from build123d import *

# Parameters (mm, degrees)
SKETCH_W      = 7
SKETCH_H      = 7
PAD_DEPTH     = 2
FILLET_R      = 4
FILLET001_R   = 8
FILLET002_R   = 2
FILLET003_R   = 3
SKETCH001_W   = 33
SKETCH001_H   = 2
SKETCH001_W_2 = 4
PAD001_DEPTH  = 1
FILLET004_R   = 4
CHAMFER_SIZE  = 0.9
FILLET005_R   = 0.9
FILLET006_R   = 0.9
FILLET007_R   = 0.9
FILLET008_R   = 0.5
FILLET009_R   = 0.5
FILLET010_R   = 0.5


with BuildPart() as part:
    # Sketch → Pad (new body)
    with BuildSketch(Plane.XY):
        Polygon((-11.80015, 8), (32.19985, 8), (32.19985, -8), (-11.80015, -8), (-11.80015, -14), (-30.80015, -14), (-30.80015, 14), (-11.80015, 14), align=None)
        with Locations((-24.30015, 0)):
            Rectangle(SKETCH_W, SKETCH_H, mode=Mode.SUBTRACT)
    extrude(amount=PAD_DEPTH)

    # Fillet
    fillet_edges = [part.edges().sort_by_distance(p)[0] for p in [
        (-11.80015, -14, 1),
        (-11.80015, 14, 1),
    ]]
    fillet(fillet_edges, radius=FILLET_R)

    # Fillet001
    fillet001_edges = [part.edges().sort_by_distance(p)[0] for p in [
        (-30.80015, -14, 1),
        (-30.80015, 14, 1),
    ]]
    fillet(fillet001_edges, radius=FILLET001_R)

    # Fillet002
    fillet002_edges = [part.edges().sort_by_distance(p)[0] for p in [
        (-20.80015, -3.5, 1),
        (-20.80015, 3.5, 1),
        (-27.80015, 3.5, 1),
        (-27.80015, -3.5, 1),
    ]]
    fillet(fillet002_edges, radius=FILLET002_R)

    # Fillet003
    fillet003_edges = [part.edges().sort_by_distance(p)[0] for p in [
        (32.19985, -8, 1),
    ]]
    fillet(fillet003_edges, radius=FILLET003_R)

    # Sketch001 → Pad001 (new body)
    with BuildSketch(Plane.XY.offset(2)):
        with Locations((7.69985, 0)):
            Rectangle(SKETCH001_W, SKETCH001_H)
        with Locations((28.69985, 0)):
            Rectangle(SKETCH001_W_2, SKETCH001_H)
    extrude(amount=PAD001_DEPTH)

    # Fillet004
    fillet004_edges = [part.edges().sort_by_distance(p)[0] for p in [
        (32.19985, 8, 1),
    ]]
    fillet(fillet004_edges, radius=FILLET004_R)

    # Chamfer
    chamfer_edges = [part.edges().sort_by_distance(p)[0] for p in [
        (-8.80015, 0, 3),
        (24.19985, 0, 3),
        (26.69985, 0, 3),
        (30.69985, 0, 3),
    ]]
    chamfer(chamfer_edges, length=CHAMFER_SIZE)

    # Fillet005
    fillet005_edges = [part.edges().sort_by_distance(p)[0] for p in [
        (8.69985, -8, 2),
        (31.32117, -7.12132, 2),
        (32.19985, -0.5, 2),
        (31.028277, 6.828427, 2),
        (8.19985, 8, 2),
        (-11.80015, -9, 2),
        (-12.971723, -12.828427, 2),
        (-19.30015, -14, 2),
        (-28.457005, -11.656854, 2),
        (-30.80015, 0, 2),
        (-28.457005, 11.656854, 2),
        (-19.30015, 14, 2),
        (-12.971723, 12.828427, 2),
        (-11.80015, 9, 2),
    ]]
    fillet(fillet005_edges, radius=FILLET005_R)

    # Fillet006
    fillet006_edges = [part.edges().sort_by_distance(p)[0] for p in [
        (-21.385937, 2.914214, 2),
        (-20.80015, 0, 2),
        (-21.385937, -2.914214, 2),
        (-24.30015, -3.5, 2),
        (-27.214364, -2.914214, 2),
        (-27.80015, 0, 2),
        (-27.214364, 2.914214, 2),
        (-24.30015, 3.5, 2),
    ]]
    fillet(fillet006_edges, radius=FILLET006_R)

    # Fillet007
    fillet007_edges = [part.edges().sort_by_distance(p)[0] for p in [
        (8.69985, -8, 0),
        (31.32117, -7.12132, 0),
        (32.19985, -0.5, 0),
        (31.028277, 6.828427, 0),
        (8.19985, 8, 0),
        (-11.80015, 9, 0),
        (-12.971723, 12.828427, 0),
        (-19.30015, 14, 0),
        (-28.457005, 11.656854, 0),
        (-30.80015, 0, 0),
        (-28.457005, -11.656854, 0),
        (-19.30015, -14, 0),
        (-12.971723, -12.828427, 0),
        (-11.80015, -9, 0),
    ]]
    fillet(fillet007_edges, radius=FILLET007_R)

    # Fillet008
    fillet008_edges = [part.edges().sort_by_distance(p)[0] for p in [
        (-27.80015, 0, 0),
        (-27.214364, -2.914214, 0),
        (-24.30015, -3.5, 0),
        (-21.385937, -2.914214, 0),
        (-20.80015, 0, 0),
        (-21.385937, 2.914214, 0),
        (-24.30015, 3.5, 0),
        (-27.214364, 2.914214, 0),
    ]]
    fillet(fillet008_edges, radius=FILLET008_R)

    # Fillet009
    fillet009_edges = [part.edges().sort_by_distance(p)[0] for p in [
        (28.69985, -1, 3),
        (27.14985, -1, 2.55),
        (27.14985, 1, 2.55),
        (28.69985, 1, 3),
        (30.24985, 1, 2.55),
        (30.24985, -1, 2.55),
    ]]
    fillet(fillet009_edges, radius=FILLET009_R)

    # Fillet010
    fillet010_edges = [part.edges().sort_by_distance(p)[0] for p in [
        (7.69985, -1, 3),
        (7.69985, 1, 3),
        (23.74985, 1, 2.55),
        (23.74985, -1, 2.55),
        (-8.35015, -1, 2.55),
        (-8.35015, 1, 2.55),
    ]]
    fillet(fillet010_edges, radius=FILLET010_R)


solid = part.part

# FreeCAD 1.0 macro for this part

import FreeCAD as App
import Part
import Sketcher
from FreeCAD import Vector
Q = App.Units.Quantity


def edges_at(feature, points):
    """Names of the edges that pass closest to the given points."""
    edges = feature.Shape.Edges
    near = lambda p: min(range(len(edges)), key=lambda i: edges[i].distToShape(Part.Vertex(*p))[0])
    return sorted({f"Edge{near(p) + 1}" for p in points})


def add_polygon(sketch, points):
    """Adds a closed chain of lines whose ends are joined by coincident constraints."""
    first, n = sketch.GeometryCount, len(points)
    for a, b in zip(points, points[1:] + points[:1]):
        sketch.addGeometry(Part.LineSegment(App.Vector(*a, 0), App.Vector(*b, 0)), False)
    for i in range(n):
        sketch.addConstraint(Sketcher.Constraint("Coincident", first + i, 2, first + (i + 1) % n, 1))

doc = App.newDocument("Part")
body = doc.addObject("PartDesign::Body", "Body")

sketch1 = doc.addObject("Sketcher::SketchObject", "Sketch")
body.addObject(sketch1)
sketch1.AttachmentSupport = (doc.XY_Plane, [""])
sketch1.MapMode = "FlatFace"
add_polygon(sketch1, [(32, 8), (-12, 8), (-12, 14), (-31, 14), (-31, -14), (-12, -14), (-12, -8), (32, -8)])
add_polygon(sketch1, [(-28, -4), (-28, 4), (-21, 4), (-21, -4)])
sketch1.addConstraint(Sketcher.Constraint("Horizontal", 0))
sketch1.addConstraint(Sketcher.Constraint("Vertical", 1))
sketch1.addConstraint(Sketcher.Constraint("Horizontal", 2))
sketch1.addConstraint(Sketcher.Constraint("Vertical", 3))
sketch1.addConstraint(Sketcher.Constraint("Horizontal", 4))
sketch1.addConstraint(Sketcher.Constraint("Vertical", 5))
sketch1.addConstraint(Sketcher.Constraint("Horizontal", 6))
sketch1.addConstraint(Sketcher.Constraint("Vertical", 7))
sketch1.addConstraint(Sketcher.Constraint("Vertical", 8))
sketch1.addConstraint(Sketcher.Constraint("Horizontal", 9))
sketch1.addConstraint(Sketcher.Constraint("Vertical", 10))
sketch1.addConstraint(Sketcher.Constraint("Horizontal", 11))
sketch1.addConstraint(Sketcher.Constraint("Symmetric", 1, 2, 4, 2, -1))
sketch1.addConstraint(Sketcher.Constraint("Equal", 1, 5))
sketch1.addConstraint(Sketcher.Constraint("Equal", 11, 8))
sketch1.addConstraint(Sketcher.Constraint("DistanceX", 0, 2, 0, 1, Q("44 mm")))
sketch1.addConstraint(Sketcher.Constraint("DistanceX", 2, 2, 2, 1, Q("19 mm")))
sketch1.addConstraint(Sketcher.Constraint("DistanceX", 9, 1, 9, 2, Q("7 mm")))
sketch1.addConstraint(Sketcher.Constraint("DistanceY", 1, 1, 1, 2, Q("6 mm")))
sketch1.addConstraint(Sketcher.Constraint("DistanceY", 3, 2, 3, 1, Q("28 mm")))
sketch1.addConstraint(Sketcher.Constraint("DistanceX", 2, 2, 8, 2, Q("3 mm")))
sketch1.addConstraint(Sketcher.Constraint("DistanceY", -1, 1, 8, 2, Q("3.5 mm")))
sketch1.addConstraint(Sketcher.Constraint("DistanceX", 0, 2, -1, 1, Q("11.80015 mm")))
pad1 = doc.addObject("PartDesign::Pad", "Pad")
body.addObject(pad1)
pad1.Profile = sketch1
pad1.Length = 2
doc.recompute()

fillet = doc.addObject("PartDesign::Fillet", "Fillet")
body.addObject(fillet)
fillet.Base = (pad1, edges_at(pad1, [(-11.8, -14, 1), (-11.8, 14, 1)]))
fillet.Radius = 4
doc.recompute()

fillet2 = doc.addObject("PartDesign::Fillet", "Fillet001")
body.addObject(fillet2)
fillet2.Base = (fillet, edges_at(fillet, [(-30.8, -14, 1), (-30.8, 14, 1)]))
fillet2.Radius = 8
doc.recompute()

fillet3 = doc.addObject("PartDesign::Fillet", "Fillet002")
body.addObject(fillet3)
fillet3.Base = (fillet2, edges_at(fillet2, [
    (-20.8, -3.5, 1),
    (-20.8, 3.5, 1),
    (-27.8, 3.5, 1),
    (-27.8, -3.5, 1),
]))
fillet3.Radius = 2
doc.recompute()

fillet4 = doc.addObject("PartDesign::Fillet", "Fillet003")
body.addObject(fillet4)
fillet4.Base = (fillet3, edges_at(fillet3, [(32.2, -8, 1)]))
fillet4.Radius = 3

sketch2 = doc.addObject("Sketcher::SketchObject", "Sketch001")
body.addObject(sketch2)
sketch2.AttachmentSupport = (doc.XY_Plane, [""])
sketch2.MapMode = "FlatFace"
sketch2.AttachmentOffset = App.Placement(Vector(0, 0, 2), App.Rotation())
add_polygon(sketch2, [(-8.8, 1), (-8.8, -1), (24.2, -1), (24.2, 1)])
add_polygon(sketch2, [(26.7, 1), (26.7, -1), (30.7, -1), (30.7, 1)])
sketch2.addConstraint(Sketcher.Constraint("Vertical", 0))
sketch2.addConstraint(Sketcher.Constraint("Horizontal", 1))
sketch2.addConstraint(Sketcher.Constraint("Vertical", 2))
sketch2.addConstraint(Sketcher.Constraint("Horizontal", 3))
sketch2.addConstraint(Sketcher.Constraint("Vertical", 4))
sketch2.addConstraint(Sketcher.Constraint("Horizontal", 5))
sketch2.addConstraint(Sketcher.Constraint("Vertical", 6))
sketch2.addConstraint(Sketcher.Constraint("Horizontal", 7))
sketch2.addConstraint(Sketcher.Constraint("Horizontal", 1, 2, 4, 2))
sketch2.addConstraint(Sketcher.Constraint("Horizontal", 3, 2, 6, 2))
sketch2.addConstraint(Sketcher.Constraint("DistanceX", 1, 1, 1, 2, Q("33 mm")))
sketch2.addConstraint(Sketcher.Constraint("DistanceX", 5, 1, 5, 2, Q("4 mm")))
sketch2.addConstraint(Sketcher.Constraint("DistanceY", 0, 2, 0, 1, Q("2 mm")))
sketch2.addConstraint(Sketcher.Constraint("DistanceY", 0, 2, -1, 1, Q("1 mm")))
sketch2.addConstraint(Sketcher.Constraint("DistanceX", 1, 2, 4, 2, Q("2.5 mm")))
sketch2.addConstraint(Sketcher.Constraint("DistanceX", 0, 2, -1, 1, Q("8.80015 mm")))
pad2 = doc.addObject("PartDesign::Pad", "Pad001")
body.addObject(pad2)
pad2.Profile = sketch2
pad2.Length = 1
doc.recompute()

fillet5 = doc.addObject("PartDesign::Fillet", "Fillet004")
body.addObject(fillet5)
fillet5.Base = (pad2, edges_at(pad2, [(32.2, 8, 1)]))
fillet5.Radius = 4
doc.recompute()

chamfer = doc.addObject("PartDesign::Chamfer", "Chamfer")
body.addObject(chamfer)
chamfer.Base = (fillet5, edges_at(fillet5, [
    (-8.8, 0, 3),
    (24.2, 0, 3),
    (26.7, 0, 3),
    (30.7, 0, 3),
]))
chamfer.Size = 0.9
doc.recompute()

fillet6 = doc.addObject("PartDesign::Fillet", "Fillet005")
body.addObject(fillet6)
fillet6.Base = (chamfer, edges_at(chamfer, [
    (8.7, -8, 2),
    (31.321, -7.121, 2),
    (32.2, -0.5, 2),
    (31.028, 6.828, 2),
    (8.2, 8, 2),
    (-11.8, -9, 2),
    (-12.972, -12.828, 2),
    (-19.3, -14, 2),
    (-28.457, -11.657, 2),
    (-30.8, 0, 2),
    (-28.457, 11.657, 2),
    (-19.3, 14, 2),
    (-12.972, 12.828, 2),
    (-11.8, 9, 2),
]))
fillet6.Radius = 0.9
doc.recompute()

fillet7 = doc.addObject("PartDesign::Fillet", "Fillet006")
body.addObject(fillet7)
fillet7.Base = (fillet6, edges_at(fillet6, [
    (-21.386, 2.914, 2),
    (-20.8, 0, 2),
    (-21.386, -2.914, 2),
    (-24.3, -3.5, 2),
    (-27.214, -2.914, 2),
    (-27.8, 0, 2),
    (-27.214, 2.914, 2),
    (-24.3, 3.5, 2),
]))
fillet7.Radius = 0.9
doc.recompute()

fillet8 = doc.addObject("PartDesign::Fillet", "Fillet007")
body.addObject(fillet8)
fillet8.Base = (fillet7, edges_at(fillet7, [
    (8.7, -8, 0),
    (31.321, -7.121, 0),
    (32.2, -0.5, 0),
    (31.028, 6.828, 0),
    (8.2, 8, 0),
    (-11.8, 9, 0),
    (-12.972, 12.828, 0),
    (-19.3, 14, 0),
    (-28.457, 11.657, 0),
    (-30.8, 0, 0),
    (-28.457, -11.657, 0),
    (-19.3, -14, 0),
    (-12.972, -12.828, 0),
    (-11.8, -9, 0),
]))
fillet8.Radius = 0.9
doc.recompute()

fillet9 = doc.addObject("PartDesign::Fillet", "Fillet008")
body.addObject(fillet9)
fillet9.Base = (fillet8, edges_at(fillet8, [
    (-27.8, 0, 0),
    (-27.214, -2.914, 0),
    (-24.3, -3.5, 0),
    (-21.386, -2.914, 0),
    (-20.8, 0, 0),
    (-21.386, 2.914, 0),
    (-24.3, 3.5, 0),
    (-27.214, 2.914, 0),
]))
fillet9.Radius = 0.5
doc.recompute()

fillet10 = doc.addObject("PartDesign::Fillet", "Fillet009")
body.addObject(fillet10)
fillet10.Base = (fillet9, edges_at(fillet9, [
    (28.7, -1, 3),
    (27.15, -1, 2.55),
    (27.15, 1, 2.55),
    (28.7, 1, 3),
    (30.25, 1, 2.55),
    (30.25, -1, 2.55),
]))
fillet10.Radius = 0.5
doc.recompute()

fillet11 = doc.addObject("PartDesign::Fillet", "Fillet010")
body.addObject(fillet11)
fillet11.Base = (fillet10, edges_at(fillet10, [
    (7.7, -1, 3),
    (7.7, 1, 3),
    (23.75, 1, 2.55),
    (23.75, -1, 2.55),
    (-8.35, -1, 2.55),
    (-8.35, 1, 2.55),
]))
fillet11.Radius = 0.5

doc.recompute()
